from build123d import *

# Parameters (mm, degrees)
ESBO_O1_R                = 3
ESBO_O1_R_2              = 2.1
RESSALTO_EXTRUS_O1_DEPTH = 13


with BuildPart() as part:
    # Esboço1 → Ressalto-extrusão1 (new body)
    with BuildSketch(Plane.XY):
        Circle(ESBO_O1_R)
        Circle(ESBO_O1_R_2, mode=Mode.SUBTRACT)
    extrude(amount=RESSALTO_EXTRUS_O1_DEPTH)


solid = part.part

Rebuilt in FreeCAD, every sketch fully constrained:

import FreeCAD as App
import Part
import Sketcher
from FreeCAD import Vector

doc = App.newDocument("Part")
body = doc.addObject("PartDesign::Body", "Body")

sketch1 = body.newObject("Sketcher::SketchObject", "Sketch")
sketch1.AttachmentSupport = (doc.getObject("XY_Plane"), [""])
sketch1.MapMode = "FlatFace"
sketch1.addGeometry([
    Part.Circle(Vector(0, 0, 0), Vector(0, 0, 1), 3),
    Part.Circle(Vector(0, 0, 0), Vector(0, 0, 1), 2.1),
], False)
sketch1.addConstraint([
    Sketcher.Constraint("Coincident", 0, 3, -1, 1),
    Sketcher.Constraint("Coincident", 1, 3, -1, 1),
    Sketcher.Constraint("Diameter", 0, 6.0),
    Sketcher.Constraint("Diameter", 1, 4.2),
])
pad1 = body.newObject("PartDesign::Pad", "Pad")
pad1.Profile = sketch1
pad1.Length = 13

doc.recompute()
